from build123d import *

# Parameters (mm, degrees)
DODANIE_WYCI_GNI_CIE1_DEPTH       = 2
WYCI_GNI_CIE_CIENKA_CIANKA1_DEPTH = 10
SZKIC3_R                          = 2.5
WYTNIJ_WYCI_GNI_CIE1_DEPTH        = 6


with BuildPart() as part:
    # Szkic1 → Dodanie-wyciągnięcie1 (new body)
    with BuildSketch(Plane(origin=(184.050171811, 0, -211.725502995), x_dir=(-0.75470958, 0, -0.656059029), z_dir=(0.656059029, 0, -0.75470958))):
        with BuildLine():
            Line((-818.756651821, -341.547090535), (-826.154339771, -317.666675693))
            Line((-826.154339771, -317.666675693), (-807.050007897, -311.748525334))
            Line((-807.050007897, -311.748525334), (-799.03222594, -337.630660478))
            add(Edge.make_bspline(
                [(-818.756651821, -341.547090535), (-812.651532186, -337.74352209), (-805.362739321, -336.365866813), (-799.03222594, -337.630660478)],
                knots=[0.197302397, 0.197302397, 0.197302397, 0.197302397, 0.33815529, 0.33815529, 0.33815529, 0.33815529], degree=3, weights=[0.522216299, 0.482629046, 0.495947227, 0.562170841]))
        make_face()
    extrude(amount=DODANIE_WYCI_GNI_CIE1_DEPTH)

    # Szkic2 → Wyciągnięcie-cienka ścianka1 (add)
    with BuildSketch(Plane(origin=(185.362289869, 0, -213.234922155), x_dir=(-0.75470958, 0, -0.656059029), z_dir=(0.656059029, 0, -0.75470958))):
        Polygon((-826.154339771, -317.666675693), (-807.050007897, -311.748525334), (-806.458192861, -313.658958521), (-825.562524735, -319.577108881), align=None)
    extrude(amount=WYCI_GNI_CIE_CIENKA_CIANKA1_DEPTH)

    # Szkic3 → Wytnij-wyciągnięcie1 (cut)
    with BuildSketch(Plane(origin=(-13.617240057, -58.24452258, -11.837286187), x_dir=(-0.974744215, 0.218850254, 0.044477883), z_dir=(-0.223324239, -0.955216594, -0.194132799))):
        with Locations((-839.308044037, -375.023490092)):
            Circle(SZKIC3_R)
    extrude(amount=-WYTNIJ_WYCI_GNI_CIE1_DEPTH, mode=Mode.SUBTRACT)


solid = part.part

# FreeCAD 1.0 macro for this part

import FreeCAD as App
import Part
import Sketcher

V = App.Vector


def add_polygon(sketch, points):
    """Adds a closed chain of lines whose ends are joined by coincident constraints."""
    first, n = sketch.GeometryCount, len(points)
    for a, b in zip(points, points[1:] + points[:1]):
        sketch.addGeometry(Part.LineSegment(App.Vector(*a, 0), App.Vector(*b, 0)), False)
    for i in range(n):
        sketch.addConstraint(Sketcher.Constraint("Coincident", first + i, 2, first + (i + 1) % n, 1))

doc = App.newDocument("Part")
body = doc.addObject("PartDesign::Body", "Body")

# Sketch on an angled plane
sketch1 = doc.addObject("Sketcher::SketchObject", "Sketch")
body.addObject(sketch1)
sketch1.Placement = App.Placement(V(184.050172, 0, -211.725503), App.Rotation(V(-0.75470958, 0, -0.656059029), V(0, 1, 0), V(0.656059029, 0, -0.75470958), "ZXY"))
sketch1.addGeometry(Part.LineSegment(V(-826.15434, -317.666675, 0), V(-818.756652, -341.54709, 0)), False)
sketch1.addGeometry(Part.BSplineCurve([V(-818.756652, -341.54709, 0), V(-812.651532, -337.743522, 0), V(-805.362739, -336.365867, 0), V(-799.032226, -337.63066, 0)], [4, 4], [0.197302397, 0.33815529], False, 3, [0.522216299, 0.482629046, 0.495947227, 0.562170841], False), False)
sketch1.addGeometry(Part.LineSegment(V(-799.032226, -337.63066, 0), V(-807.050008, -311.748525, 0)), False)
sketch1.addGeometry(Part.LineSegment(V(-807.050008, -311.748525, 0), V(-826.15434, -317.666675, 0)), False)
sketch1.addConstraint(Sketcher.Constraint("Block", 1))
sketch1.addConstraint(Sketcher.Constraint("Coincident", 0, 2, 1, 1))
sketch1.addConstraint(Sketcher.Constraint("Coincident", 1, 2, 2, 1))
sketch1.addConstraint(Sketcher.Constraint("Coincident", 2, 2, 3, 1))
sketch1.addConstraint(Sketcher.Constraint("Coincident", 3, 2, 0, 1))
sketch1.addConstraint(Sketcher.Constraint("Distance", 0, 25.0))
sketch1.addConstraint(Sketcher.Constraint("Distance", 3, 20.0))
sketch1.addConstraint(Sketcher.Constraint("DistanceX", 3, 2, -1, 1, 826.15434))
sketch1.addConstraint(Sketcher.Constraint("DistanceX", 3, 2, 2, 2, 19.104332))
pad1 = doc.addObject("PartDesign::Pad", "Pad")
body.addObject(pad1)
pad1.Profile = sketch1
pad1.Length = 2

# Sketch on an angled plane
sketch2 = doc.addObject("Sketcher::SketchObject", "Sketch001")
body.addObject(sketch2)
sketch2.Placement = App.Placement(V(185.36229, 0, -213.234922), App.Rotation(V(-0.75470958, 0, -0.656059029), V(0, 1, 0), V(0.656059029, 0, -0.75470958), "ZXY"))
add_polygon(sketch2, [(-807.1, -311.7), (-826.2, -317.7), (-825.6, -319.6), (-806.5, -313.7)])  # lines 0-3
sketch2.addConstraint(Sketcher.Constraint("Perpendicular", 0, 1))
sketch2.addConstraint(Sketcher.Constraint("Perpendicular", 1, 2))
sketch2.addConstraint(Sketcher.Constraint("Perpendicular", 2, 3))
sketch2.addConstraint(Sketcher.Constraint("Distance", 0, 20.0))
sketch2.addConstraint(Sketcher.Constraint("Distance", 1, 2.0))
sketch2.addConstraint(Sketcher.Constraint("DistanceX", 0, 2, -1, 1, 826.15434))
sketch2.addConstraint(Sketcher.Constraint("DistanceY", 1, 2, -1, 1, 319.577109))
sketch2.addConstraint(Sketcher.Constraint("DistanceY", 2, 2, -1, 1, 313.658958))
pad2 = doc.addObject("PartDesign::Pad", "Pad001")
body.addObject(pad2)
pad2.Profile = sketch2
pad2.Length = 10

# Sketch on an angled plane
sketch3 = doc.addObject("Sketcher::SketchObject", "Sketch002")
body.addObject(sketch3)
sketch3.Placement = App.Placement(V(-13.61724, -58.244523, -11.837286), App.Rotation(V(-0.974744215, 0.218850254, 0.044477883), V(0, 0.199162812, -0.979966416), V(-0.223324239, -0.955216594, -0.194132799), "ZXY"))
sketch3.addGeometry(Part.Circle(V(-839.3, -375, 0), V(0, 0, 1), 2.5), False)
sketch3.addConstraint(Sketcher.Constraint("Diameter", 0, 5.0))
sketch3.addConstraint(Sketcher.Constraint("DistanceY", 0, 3, -1, 1, 375.023491))
sketch3.addConstraint(Sketcher.Constraint("DistanceX", 0, 3, -1, 1, 839.308044))
pocket1 = doc.addObject("PartDesign::Pocket", "Pocket")
body.addObject(pocket1)
pocket1.Profile = sketch3
pocket1.Length = 6

doc.recompute()
